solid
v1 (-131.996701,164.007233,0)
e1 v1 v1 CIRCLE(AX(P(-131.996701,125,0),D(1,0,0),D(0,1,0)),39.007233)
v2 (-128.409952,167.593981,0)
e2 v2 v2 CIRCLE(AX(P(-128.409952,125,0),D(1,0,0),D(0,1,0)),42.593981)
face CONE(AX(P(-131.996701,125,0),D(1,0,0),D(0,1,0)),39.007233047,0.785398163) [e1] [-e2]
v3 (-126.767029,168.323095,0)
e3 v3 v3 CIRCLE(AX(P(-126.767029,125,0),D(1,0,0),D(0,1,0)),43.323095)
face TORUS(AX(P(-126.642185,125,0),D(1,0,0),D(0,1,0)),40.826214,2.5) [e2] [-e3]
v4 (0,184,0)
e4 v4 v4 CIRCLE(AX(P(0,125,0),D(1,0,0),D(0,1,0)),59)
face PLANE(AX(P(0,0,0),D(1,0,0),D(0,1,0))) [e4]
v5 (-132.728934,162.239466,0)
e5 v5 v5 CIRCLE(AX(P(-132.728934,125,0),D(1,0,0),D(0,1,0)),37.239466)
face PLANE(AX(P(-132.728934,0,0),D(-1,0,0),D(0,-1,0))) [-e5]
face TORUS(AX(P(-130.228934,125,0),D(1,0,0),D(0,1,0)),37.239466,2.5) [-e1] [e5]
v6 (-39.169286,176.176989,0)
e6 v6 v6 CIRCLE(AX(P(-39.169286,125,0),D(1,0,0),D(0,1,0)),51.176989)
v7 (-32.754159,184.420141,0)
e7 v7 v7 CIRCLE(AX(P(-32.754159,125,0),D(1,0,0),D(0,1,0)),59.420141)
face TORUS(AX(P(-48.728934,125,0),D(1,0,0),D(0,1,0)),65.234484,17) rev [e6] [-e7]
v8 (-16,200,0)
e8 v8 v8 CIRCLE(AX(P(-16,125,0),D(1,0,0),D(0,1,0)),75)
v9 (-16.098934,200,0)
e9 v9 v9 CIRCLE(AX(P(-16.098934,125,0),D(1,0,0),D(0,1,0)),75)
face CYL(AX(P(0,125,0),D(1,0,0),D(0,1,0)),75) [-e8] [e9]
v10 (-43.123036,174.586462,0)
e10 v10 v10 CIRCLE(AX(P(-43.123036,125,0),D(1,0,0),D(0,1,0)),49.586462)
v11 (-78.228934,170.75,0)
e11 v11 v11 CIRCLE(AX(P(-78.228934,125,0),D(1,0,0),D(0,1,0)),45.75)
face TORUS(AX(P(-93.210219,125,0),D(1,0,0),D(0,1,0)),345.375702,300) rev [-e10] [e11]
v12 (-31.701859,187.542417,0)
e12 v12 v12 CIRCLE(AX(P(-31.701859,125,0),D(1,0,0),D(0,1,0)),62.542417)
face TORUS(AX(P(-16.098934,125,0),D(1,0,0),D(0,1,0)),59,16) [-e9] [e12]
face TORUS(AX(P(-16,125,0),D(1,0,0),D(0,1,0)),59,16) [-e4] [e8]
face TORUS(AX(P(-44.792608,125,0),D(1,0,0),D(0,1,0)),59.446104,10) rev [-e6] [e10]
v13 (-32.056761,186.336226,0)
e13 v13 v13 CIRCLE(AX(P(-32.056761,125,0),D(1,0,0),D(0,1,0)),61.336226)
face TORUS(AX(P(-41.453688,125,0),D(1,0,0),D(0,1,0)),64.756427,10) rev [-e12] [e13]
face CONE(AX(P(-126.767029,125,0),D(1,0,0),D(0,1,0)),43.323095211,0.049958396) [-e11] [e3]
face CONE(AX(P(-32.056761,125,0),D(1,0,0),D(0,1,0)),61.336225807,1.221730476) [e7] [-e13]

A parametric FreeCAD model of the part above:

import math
import FreeCAD as App
import Part
import Sketcher

V = App.Vector
Q = App.Units.Quantity

doc = App.newDocument("Part")
body = doc.addObject("PartDesign::Body", "Body")

# Sketch on XY plane
sketch1 = body.newObject("Sketcher::SketchObject", "Sketch")
sketch1.AttachmentSupport = (doc.getObject("XY_Plane"), [""])
sketch1.MapMode = "FlatFace"
sketch1.addGeometry([
    Part.LineSegment(V(-126.767029, 81.676905, 0), V(-78.228934, 79.25, 0)),  # 0
    Part.ArcOfCircle(Part.Circle(V(-93.210219, -220.375701, 0), V(0, 0, 1), 300), math.radians(80.389044), math.radians(87.137595)),  # 1
    Part.ArcOfCircle(Part.Circle(V(-44.792608, 65.553896, 0), V(0, 0, 1), 10), math.radians(55.782762), math.radians(80.389044)),  # 2
    Part.ArcOfCircle(Part.Circle(V(-48.728934, 59.765516, 0), V(0, 0, 1), 17), math.radians(20), math.radians(55.782762)),  # 3
    Part.LineSegment(V(-32.754159, 65.579859, 0), V(-32.056761, 63.663774, 0)),  # 4
    Part.ArcOfCircle(Part.Circle(V(-41.453688, 60.243573, 0), V(0, 0, 1), 10), math.radians(12.791337), math.radians(20)),  # 5
    Part.ArcOfCircle(Part.Circle(V(-16.098934, 66, 0), V(0, 0, 1), 16), math.radians(-167.208663), math.radians(-90)),  # 6
    Part.LineSegment(V(-16.098934, 50, 0), V(-16, 50, 0)),  # 7
    Part.ArcOfCircle(Part.Circle(V(-16, 66, 0), V(0, 0, 1), 16), math.radians(-90), math.radians(0)),  # 8
    Part.LineSegment(V(0, 66, 0), V(0, 125, 0)),  # 9
    Part.LineSegment(V(0, 125, 0), V(-132.728934, 125, 0)),  # 10
    Part.LineSegment(V(-132.728934, 125, 0), V(-132.728934, 87.760534, 0)),  # 11
    Part.ArcOfCircle(Part.Circle(V(-130.228934, 87.760534, 0), V(0, 0, 1), 2.5), math.radians(-180), math.radians(-135)),  # 12
    Part.LineSegment(V(-131.996701, 85.992767, 0), V(-128.409952, 82.406019, 0)),  # 13
    Part.ArcOfCircle(Part.Circle(V(-126.642185, 84.173786, 0), V(0, 0, 1), 2.5), math.radians(-135), math.radians(-92.862405)),  # 14
], False)
sketch1.addGeometry(Part.LineSegment(V(0, 125, 0), V(-132.728934, 125, 0)), True)  # axis
sketch1.addConstraint([
    Sketcher.Constraint("Tangent", 0, 2, 1, 2),
    Sketcher.Constraint("Tangent", 1, 1, 2, 2),
    Sketcher.Constraint("Tangent", 2, 1, 3, 2),
    Sketcher.Constraint("Tangent", 3, 1, 4, 1),
    Sketcher.Constraint("Tangent", 4, 2, 5, 2),
    Sketcher.Constraint("Tangent", 5, 1, 6, 1),
    Sketcher.Constraint("Tangent", 6, 2, 7, 1),
    Sketcher.Constraint("Tangent", 7, 2, 8, 1),
    Sketcher.Constraint("Tangent", 8, 2, 9, 1),
    Sketcher.Constraint("Coincident", 9, 2, 10, 1),
    Sketcher.Constraint("Coincident", 10, 2, 11, 1),
    Sketcher.Constraint("Tangent", 11, 2, 12, 1),
    Sketcher.Constraint("Tangent", 12, 2, 13, 1),
    Sketcher.Constraint("Tangent", 13, 2, 14, 1),
    Sketcher.Constraint("Tangent", 14, 2, 0, 1),
    Sketcher.Constraint("Horizontal", 7),
    Sketcher.Constraint("Vertical", 9),
    Sketcher.Constraint("Horizontal", 10),
    Sketcher.Constraint("Vertical", 11),
    Sketcher.Constraint("Horizontal", 15),
    Sketcher.Constraint("Coincident", 15, 1, 9, 2),
    Sketcher.Constraint("Equal", 2, 5),
    Sketcher.Constraint("Equal", 6, 8),
    Sketcher.Constraint("Equal", 12, 14),
    Sketcher.Constraint("PointOnObject", 8, 2, -2),
    Sketcher.Constraint("Vertical", 11, 2, 15, 2),
    Sketcher.Constraint("Radius", 1, Q("300 mm")),
    Sketcher.Constraint("Radius", 2, Q("10 mm")),
    Sketcher.Constraint("Radius", 3, Q("17 mm")),
    Sketcher.Constraint("Radius", 6, Q("16 mm")),
    Sketcher.Constraint("Radius", 12, Q("2.5 mm")),
    Sketcher.Constraint("DistanceY", 9, 1, 9, 2, Q("59 mm")),
    Sketcher.Constraint("Angle", 4, Q("-70 deg")),
    Sketcher.Constraint("Angle", 13, Q("-45 deg")),
    Sketcher.Constraint("DistanceY", -1, 1, 6, 3, Q("66 mm")),
    Sketcher.Constraint("DistanceX", 12, 3, 0, 2, Q("52 mm")),
    Sketcher.Constraint("DistanceX", 11, 2, 3, 3, Q("84 mm")),
    Sketcher.Constraint("DistanceY", -1, 1, 0, 2, Q("79.25 mm")),
    Sketcher.Constraint("DistanceX", 3, 3, 6, 3, Q("32.63 mm")),
    Sketcher.Constraint("DistanceY", 1, 3, -1, 1, Q("220.375701 mm")),
    Sketcher.Constraint("DistanceX", 12, 2, -1, 1, Q("131.996701 mm")),
    Sketcher.Constraint("DistanceX", 5, 3, 2, 1, Q("2.284401 mm")),
    Sketcher.Constraint("Distance", 0, Q("48.598731 mm")),
])
revolution = body.newObject("PartDesign::Revolution", "Revolution")
revolution.Profile = sketch1
revolution.ReferenceAxis = (sketch1, ["Axis0"])
revolution.Angle = 360

doc.recompute()
